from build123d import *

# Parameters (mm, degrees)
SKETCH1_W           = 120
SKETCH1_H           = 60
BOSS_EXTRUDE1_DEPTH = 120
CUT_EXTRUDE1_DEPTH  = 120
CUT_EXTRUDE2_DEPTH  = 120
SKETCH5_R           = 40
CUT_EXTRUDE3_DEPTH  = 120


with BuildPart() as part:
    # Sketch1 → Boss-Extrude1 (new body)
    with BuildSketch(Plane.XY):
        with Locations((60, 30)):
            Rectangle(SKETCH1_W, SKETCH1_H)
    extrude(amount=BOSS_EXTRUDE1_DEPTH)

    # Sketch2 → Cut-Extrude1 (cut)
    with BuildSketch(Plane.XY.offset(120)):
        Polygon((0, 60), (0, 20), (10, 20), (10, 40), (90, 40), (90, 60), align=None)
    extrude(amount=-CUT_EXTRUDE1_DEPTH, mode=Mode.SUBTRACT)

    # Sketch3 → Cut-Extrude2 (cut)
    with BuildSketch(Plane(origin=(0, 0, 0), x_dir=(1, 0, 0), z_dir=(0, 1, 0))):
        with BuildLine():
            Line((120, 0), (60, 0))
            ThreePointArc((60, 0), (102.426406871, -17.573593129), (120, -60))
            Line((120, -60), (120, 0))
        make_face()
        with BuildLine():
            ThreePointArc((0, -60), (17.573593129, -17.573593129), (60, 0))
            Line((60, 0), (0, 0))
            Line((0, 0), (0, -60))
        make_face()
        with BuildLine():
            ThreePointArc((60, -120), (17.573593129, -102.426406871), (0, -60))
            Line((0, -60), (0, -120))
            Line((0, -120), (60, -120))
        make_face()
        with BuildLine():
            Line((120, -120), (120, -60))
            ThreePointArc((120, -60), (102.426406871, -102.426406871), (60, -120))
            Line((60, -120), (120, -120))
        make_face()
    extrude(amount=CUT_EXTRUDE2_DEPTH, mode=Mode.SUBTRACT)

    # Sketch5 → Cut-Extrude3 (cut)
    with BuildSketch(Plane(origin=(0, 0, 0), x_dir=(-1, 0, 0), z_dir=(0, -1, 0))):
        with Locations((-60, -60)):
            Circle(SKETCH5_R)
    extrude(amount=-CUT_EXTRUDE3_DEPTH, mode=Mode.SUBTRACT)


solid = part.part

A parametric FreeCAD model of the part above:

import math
import FreeCAD as App
import Part
import Sketcher

V = App.Vector

doc = App.newDocument("Part")
body = doc.addObject("PartDesign::Body", "Body")

# Sketch on XY plane
sketch1 = body.newObject("Sketcher::SketchObject", "Sketch")
sketch1.AttachmentSupport = (doc.getObject("XY_Plane"), [""])
sketch1.MapMode = "FlatFace"
sketch1.addGeometry([
    Part.LineSegment(V(0, 60, 0), V(0, 0, 0)),
    Part.LineSegment(V(0, 0, 0), V(120, 0, 0)),
    Part.LineSegment(V(120, 0, 0), V(120, 60, 0)),
    Part.LineSegment(V(120, 60, 0), V(0, 60, 0)),
], False)
sketch1.addConstraint([
    Sketcher.Constraint("Coincident", 0, 2, 1, 1),
    Sketcher.Constraint("Coincident", 1, 2, 2, 1),
    Sketcher.Constraint("Coincident", 2, 2, 3, 1),
    Sketcher.Constraint("Coincident", 3, 2, 0, 1),
    Sketcher.Constraint("Vertical", 0),
    Sketcher.Constraint("Horizontal", 1),
    Sketcher.Constraint("Vertical", 2),
    Sketcher.Constraint("Horizontal", 3),
    Sketcher.Constraint("Coincident", 0, 2, -1, 1),
    Sketcher.Constraint("DistanceX", 1, 1, 1, 2, 120.0),
    Sketcher.Constraint("DistanceY", 0, 2, 0, 1, 60.0),
])
pad1 = body.newObject("PartDesign::Pad", "Pad")
pad1.Profile = sketch1
pad1.Length = 120

# Sketch on XY plane
sketch2 = body.newObject("Sketcher::SketchObject", "Sketch001")
sketch2.AttachmentSupport = (doc.getObject("XY_Plane"), [""])
sketch2.MapMode = "FlatFace"
sketch2.AttachmentOffset = App.Placement(V(0, 0, 120), App.Rotation())
sketch2.addGeometry([
    Part.LineSegment(V(0, 60, 0), V(0, 20, 0)),  # 0
    Part.LineSegment(V(0, 20, 0), V(10, 20, 0)),  # 1
    Part.LineSegment(V(10, 20, 0), V(10, 40, 0)),  # 2
    Part.LineSegment(V(10, 40, 0), V(90, 40, 0)),  # 3
    Part.LineSegment(V(90, 40, 0), V(90, 60, 0)),  # 4
    Part.LineSegment(V(90, 60, 0), V(0, 60, 0)),  # 5
], False)
sketch2.addConstraint([
    Sketcher.Constraint("Coincident", 0, 2, 1, 1),
    Sketcher.Constraint("Coincident", 1, 2, 2, 1),
    Sketcher.Constraint("Coincident", 2, 2, 3, 1),
    Sketcher.Constraint("Coincident", 3, 2, 4, 1),
    Sketcher.Constraint("Coincident", 4, 2, 5, 1),
    Sketcher.Constraint("Coincident", 5, 2, 0, 1),
    Sketcher.Constraint("Vertical", 0),
    Sketcher.Constraint("Horizontal", 1),
    Sketcher.Constraint("Vertical", 2),
    Sketcher.Constraint("Horizontal", 3),
    Sketcher.Constraint("Vertical", 4),
    Sketcher.Constraint("Horizontal", 5),
    Sketcher.Constraint("PointOnObject", 0, 2, -2),
    Sketcher.Constraint("Equal", 2, 4),
    Sketcher.Constraint("DistanceX", 1, 1, 1, 2, 10.0),
    Sketcher.Constraint("DistanceX", 3, 1, 3, 2, 80.0),
    Sketcher.Constraint("DistanceY", 0, 2, 0, 1, 40.0),
    Sketcher.Constraint("DistanceY", -1, 1, 0, 2, 20.0),
])
pocket1 = body.newObject("PartDesign::Pocket", "Pocket")
pocket1.Profile = sketch2
pocket1.Length = 120

# Sketch on XZ plane
sketch3 = body.newObject("Sketcher::SketchObject", "Sketch002")
sketch3.AttachmentSupport = (doc.getObject("XZ_Plane"), [""])
sketch3.MapMode = "FlatFace"
sketch3.addGeometry([
    Part.LineSegment(V(120, 0, 0), V(60, 0, 0)),  # 0
    Part.ArcOfCircle(Part.Circle(V(60, 60, 0), V(0, 0, 1), 60), math.radians(-90), math.radians(0)),  # 1
    Part.LineSegment(V(120, 60, 0), V(120, 0, 0)),  # 2
    Part.ArcOfCircle(Part.Circle(V(60, 60, 0), V(0, 0, 1), 60), math.radians(-180), math.radians(-90)),  # 3
    Part.LineSegment(V(60, 0, 0), V(0, 0, 0)),  # 4
    Part.LineSegment(V(0, 0, 0), V(0, 60, 0)),  # 5
    Part.ArcOfCircle(Part.Circle(V(60, 60, 0), V(0, 0, 1), 60), math.radians(90), math.radians(180)),  # 6
    Part.LineSegment(V(0, 60, 0), V(0, 120, 0)),  # 7
    Part.LineSegment(V(0, 120, 0), V(60, 120, 0)),  # 8
    Part.LineSegment(V(120, 120, 0), V(120, 60, 0)),  # 9
    Part.ArcOfCircle(Part.Circle(V(60, 60, 0), V(0, 0, 1), 60), math.radians(0), math.radians(90)),  # 10
    Part.LineSegment(V(60, 120, 0), V(120, 120, 0)),  # 11
], False)
sketch3.addConstraint([
    Sketcher.Constraint("Tangent", 0, 2, 1, 1),
    Sketcher.Constraint("Tangent", 1, 2, 2, 1),
    Sketcher.Constraint("Coincident", 2, 2, 0, 1),
    Sketcher.Constraint("Tangent", 3, 2, 4, 1),
    Sketcher.Constraint("Coincident", 4, 2, 5, 1),
    Sketcher.Constraint("Tangent", 5, 2, 3, 1),
    Sketcher.Constraint("Tangent", 6, 2, 7, 1),
    Sketcher.Constraint("Coincident", 7, 2, 8, 1),
    Sketcher.Constraint("Tangent", 8, 2, 6, 1),
    Sketcher.Constraint("Tangent", 9, 2, 10, 1),
    Sketcher.Constraint("Tangent", 10, 2, 11, 1),
    Sketcher.Constraint("Coincident", 11, 2, 9, 1),
    Sketcher.Constraint("Horizontal", 0),
    Sketcher.Constraint("Vertical", 2),
    Sketcher.Constraint("Horizontal", 4),
    Sketcher.Constraint("Vertical", 5),
    Sketcher.Constraint("Vertical", 7),
    Sketcher.Constraint("Horizontal", 8),
    Sketcher.Constraint("Vertical", 9),
    Sketcher.Constraint("Horizontal", 11),
    Sketcher.Constraint("Coincident", 4, 2, -1, 1),
    Sketcher.Constraint("Coincident", 3, 3, 1, 3),
    Sketcher.Constraint("Coincident", 6, 3, 1, 3),
    Sketcher.Constraint("Coincident", 10, 3, 1, 3),
    Sketcher.Constraint("Equal", 1, 3),
    Sketcher.Constraint("Equal", 3, 6),
    Sketcher.Constraint("Equal", 6, 10),
    Sketcher.Constraint("Radius", 1, 60.0),
])
pocket2 = body.newObject("PartDesign::Pocket", "Pocket001")
pocket2.Profile = sketch3
pocket2.Length = 120

# Sketch on XZ plane
sketch4 = body.newObject("Sketcher::SketchObject", "Sketch003")
sketch4.AttachmentSupport = (doc.getObject("XZ_Plane"), [""])
sketch4.MapMode = "FlatFace"
sketch4.addGeometry(Part.Circle(V(60, 60, 0), V(0, 0, 1), 40), False)
sketch4.addConstraint([
    Sketcher.Constraint("Diameter", 0, 80.0),
    Sketcher.Constraint("DistanceX", -1, 1, 0, 3, 60.0),
    Sketcher.Constraint("DistanceY", -1, 1, 0, 3, 60.0),
])
pocket3 = body.newObject("PartDesign::Pocket", "Pocket002")
pocket3.Profile = sketch4
pocket3.Length = 120

doc.recompute()
